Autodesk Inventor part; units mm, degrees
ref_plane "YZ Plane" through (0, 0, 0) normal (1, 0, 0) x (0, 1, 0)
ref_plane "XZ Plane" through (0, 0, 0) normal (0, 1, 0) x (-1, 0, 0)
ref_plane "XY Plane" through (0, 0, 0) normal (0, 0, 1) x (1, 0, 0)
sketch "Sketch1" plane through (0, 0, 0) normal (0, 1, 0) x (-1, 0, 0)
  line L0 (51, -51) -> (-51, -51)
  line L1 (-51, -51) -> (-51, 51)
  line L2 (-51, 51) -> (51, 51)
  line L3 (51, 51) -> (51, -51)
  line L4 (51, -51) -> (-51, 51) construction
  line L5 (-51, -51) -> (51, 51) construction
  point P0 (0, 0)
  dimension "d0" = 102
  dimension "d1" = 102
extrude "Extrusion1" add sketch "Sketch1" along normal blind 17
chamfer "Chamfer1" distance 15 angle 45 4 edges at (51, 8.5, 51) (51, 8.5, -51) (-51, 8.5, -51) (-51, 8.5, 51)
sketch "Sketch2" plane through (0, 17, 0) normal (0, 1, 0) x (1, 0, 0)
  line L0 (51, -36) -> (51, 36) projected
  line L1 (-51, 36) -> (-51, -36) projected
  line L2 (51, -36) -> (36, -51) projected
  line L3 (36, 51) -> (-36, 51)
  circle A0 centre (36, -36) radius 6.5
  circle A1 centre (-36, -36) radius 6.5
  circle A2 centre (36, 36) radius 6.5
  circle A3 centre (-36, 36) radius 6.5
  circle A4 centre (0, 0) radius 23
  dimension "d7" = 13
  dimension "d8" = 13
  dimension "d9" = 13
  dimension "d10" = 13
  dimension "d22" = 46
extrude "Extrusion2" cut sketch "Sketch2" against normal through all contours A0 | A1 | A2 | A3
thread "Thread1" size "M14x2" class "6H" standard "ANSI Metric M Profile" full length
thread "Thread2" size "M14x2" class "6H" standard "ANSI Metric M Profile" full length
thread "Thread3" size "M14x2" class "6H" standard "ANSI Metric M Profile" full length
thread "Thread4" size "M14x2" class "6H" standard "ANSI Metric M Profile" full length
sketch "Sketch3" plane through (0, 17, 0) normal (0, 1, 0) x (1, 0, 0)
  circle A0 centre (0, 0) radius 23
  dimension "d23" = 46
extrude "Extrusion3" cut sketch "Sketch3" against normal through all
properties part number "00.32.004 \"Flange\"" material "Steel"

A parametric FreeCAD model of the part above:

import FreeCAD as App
import Part
import Sketcher
from FreeCAD import Vector
Q = App.Units.Quantity


def edges_at(feature, points):
    """Names of the edges that pass closest to the given points."""
    edges = feature.Shape.Edges
    near = lambda p: min(range(len(edges)), key=lambda i: edges[i].distToShape(Part.Vertex(*p))[0])
    return sorted({f"Edge{near(p) + 1}" for p in points})

doc = App.newDocument("Part")
body = doc.addObject("PartDesign::Body", "Body")

# Sketch on XZ plane
sketch1 = doc.addObject("Sketcher::SketchObject", "Sketch")
body.addObject(sketch1)
sketch1.AttachmentSupport = (doc.XZ_Plane, [""])
sketch1.MapMode = "FlatFace"
sketch1.addGeometry([
    Part.LineSegment(Vector(51, -51, 0), Vector(-51, -51, 0)),
    Part.LineSegment(Vector(-51, -51, 0), Vector(-51, 51, 0)),
    Part.LineSegment(Vector(-51, 51, 0), Vector(51, 51, 0)),
    Part.LineSegment(Vector(51, 51, 0), Vector(51, -51, 0)),
], False)
sketch1.addConstraint([
    Sketcher.Constraint("Coincident", 0, 2, 1, 1),
    Sketcher.Constraint("Coincident", 1, 2, 2, 1),
    Sketcher.Constraint("Coincident", 2, 2, 3, 1),
    Sketcher.Constraint("Coincident", 3, 2, 0, 1),
    Sketcher.Constraint("Horizontal", 0),
    Sketcher.Constraint("Vertical", 1),
    Sketcher.Constraint("Horizontal", 2),
    Sketcher.Constraint("Vertical", 3),
    Sketcher.Constraint("Symmetric", 0, 2, 2, 2, -1, 1),
    Sketcher.Constraint("Equal", 2, 1),
    Sketcher.Constraint("DistanceX", 0, 2, 0, 1, Q("102 mm")),
])
pad1 = doc.addObject("PartDesign::Pad", "Pad")
body.addObject(pad1)
pad1.Profile = sketch1
pad1.Length = 17
pad1.Reversed = True
doc.recompute()

chamfer = doc.addObject("PartDesign::Chamfer", "Chamfer")
body.addObject(chamfer)
chamfer.Base = (pad1, edges_at(pad1, [
    (51, 8.5, 51),
    (51, 8.5, -51),
    (-51, 8.5, -51),
    (-51, 8.5, 51),
]))
chamfer.Size = 15

# Sketch on XZ plane
sketch2 = doc.addObject("Sketcher::SketchObject", "Sketch001")
body.addObject(sketch2)
sketch2.AttachmentSupport = (doc.XZ_Plane, [""])
sketch2.MapMode = "FlatFace"
sketch2.AttachmentOffset = App.Placement(Vector(0, 0, -17), App.Rotation())
sketch2.addGeometry([
    Part.Circle(Vector(36, 36, 0), Vector(0, 0, 1), 6),
    Part.Circle(Vector(-36, 36, 0), Vector(0, 0, 1), 6),
    Part.Circle(Vector(36, -36, 0), Vector(0, 0, 1), 6),
    Part.Circle(Vector(-36, -36, 0), Vector(0, 0, 1), 6),
], False)
sketch2.addConstraint([
    Sketcher.Constraint("Equal", 0, 1),
    Sketcher.Constraint("Equal", 1, 2),
    Sketcher.Constraint("Equal", 2, 3),
    Sketcher.Constraint("Symmetric", 1, 3, 2, 3, -1, 1),
    Sketcher.Constraint("Symmetric", 0, 3, 3, 3, -1, 1),
    Sketcher.Constraint("Symmetric", 0, 3, 1, 3, -2),
    Sketcher.Constraint("Diameter", 0, Q("13 mm")),
    Sketcher.Constraint("DistanceX", -1, 1, 0, 3, Q("36 mm")),
    Sketcher.Constraint("DistanceY", -1, 1, 0, 3, Q("36 mm")),
])
pocket1 = doc.addObject("PartDesign::Pocket", "Pocket")
body.addObject(pocket1)
pocket1.Profile = sketch2
pocket1.Type = "ThroughAll"
pocket1.Reversed = True

# Sketch on XZ plane
sketch3 = doc.addObject("Sketcher::SketchObject", "Sketch002")
body.addObject(sketch3)
sketch3.AttachmentSupport = (doc.XZ_Plane, [""])
sketch3.MapMode = "FlatFace"
sketch3.AttachmentOffset = App.Placement(Vector(0, 0, -17), App.Rotation())
sketch3.addGeometry(Part.Circle(Vector(0, 0, 0), Vector(0, 0, 1), 23), False)
sketch3.addConstraint([
    Sketcher.Constraint("Coincident", 0, 3, -1, 1),
    Sketcher.Constraint("Diameter", 0, Q("46 mm")),
])
pocket2 = doc.addObject("PartDesign::Pocket", "Pocket001")
body.addObject(pocket2)
pocket2.Profile = sketch3
pocket2.Type = "ThroughAll"
pocket2.Reversed = True

doc.recompute()
